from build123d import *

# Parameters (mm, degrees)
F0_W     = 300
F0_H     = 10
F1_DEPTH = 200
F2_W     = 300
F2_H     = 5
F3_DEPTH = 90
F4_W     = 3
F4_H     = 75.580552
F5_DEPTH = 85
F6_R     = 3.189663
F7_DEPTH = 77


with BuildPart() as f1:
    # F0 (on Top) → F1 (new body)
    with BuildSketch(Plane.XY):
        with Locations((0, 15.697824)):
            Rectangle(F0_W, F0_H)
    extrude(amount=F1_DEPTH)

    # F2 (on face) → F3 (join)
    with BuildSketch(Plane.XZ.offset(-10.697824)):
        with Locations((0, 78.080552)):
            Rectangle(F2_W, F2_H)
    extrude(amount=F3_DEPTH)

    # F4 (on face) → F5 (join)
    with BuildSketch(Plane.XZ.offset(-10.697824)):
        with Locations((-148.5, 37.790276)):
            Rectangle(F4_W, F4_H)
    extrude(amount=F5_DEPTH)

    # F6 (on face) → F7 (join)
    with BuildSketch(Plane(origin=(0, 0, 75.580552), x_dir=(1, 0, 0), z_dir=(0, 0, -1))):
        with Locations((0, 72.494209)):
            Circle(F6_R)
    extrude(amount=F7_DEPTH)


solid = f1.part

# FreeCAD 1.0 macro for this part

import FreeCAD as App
import Part
import Sketcher

doc = App.newDocument("Part")
body = doc.addObject("PartDesign::Body", "Body")

# Sketch on XY plane
sketch1 = body.newObject("Sketcher::SketchObject", "Sketch")
sketch1.AttachmentSupport = (doc.getObject("XY_Plane"), [""])
sketch1.MapMode = "FlatFace"
sketch1.addGeometry(Part.LineSegment(App.Vector(-150, 20.697824, 0), App.Vector(-150, 10.697824, 0)), False)
sketch1.addGeometry(Part.LineSegment(App.Vector(-150, 10.697824, 0), App.Vector(150, 10.697824, 0)), False)
sketch1.addGeometry(Part.LineSegment(App.Vector(150, 10.697824, 0), App.Vector(150, 20.697824, 0)), False)
sketch1.addGeometry(Part.LineSegment(App.Vector(150, 20.697824, 0), App.Vector(-150, 20.697824, 0)), False)
sketch1.addConstraint(Sketcher.Constraint("Coincident", 0, 2, 1, 1))
sketch1.addConstraint(Sketcher.Constraint("Coincident", 1, 2, 2, 1))
sketch1.addConstraint(Sketcher.Constraint("Coincident", 2, 2, 3, 1))
sketch1.addConstraint(Sketcher.Constraint("Coincident", 3, 2, 0, 1))
sketch1.addConstraint(Sketcher.Constraint("Vertical", 0))
sketch1.addConstraint(Sketcher.Constraint("Horizontal", 1))
sketch1.addConstraint(Sketcher.Constraint("Vertical", 2))
sketch1.addConstraint(Sketcher.Constraint("Horizontal", 3))
sketch1.addConstraint(Sketcher.Constraint("DistanceX", 1, 1, 1, 2, 300.0))
sketch1.addConstraint(Sketcher.Constraint("DistanceY", 0, 2, 0, 1, 10.0))
sketch1.addConstraint(Sketcher.Constraint("DistanceX", 0, 2, -1, 1, 150.0))
sketch1.addConstraint(Sketcher.Constraint("DistanceY", -1, 1, 0, 2, 10.697824))
pad1 = body.newObject("PartDesign::Pad", "Pad")
pad1.Profile = sketch1
pad1.Length = 200

# Sketch on XZ plane
sketch2 = body.newObject("Sketcher::SketchObject", "Sketch001")
sketch2.AttachmentSupport = (doc.getObject("XZ_Plane"), [""])
sketch2.MapMode = "FlatFace"
sketch2.AttachmentOffset = App.Placement(App.Vector(0, 0, -10.697824), App.Rotation())
sketch2.addGeometry(Part.LineSegment(App.Vector(-150, 80.580552, 0), App.Vector(-150, 75.580552, 0)), False)
sketch2.addGeometry(Part.LineSegment(App.Vector(-150, 75.580552, 0), App.Vector(150, 75.580552, 0)), False)
sketch2.addGeometry(Part.LineSegment(App.Vector(150, 75.580552, 0), App.Vector(150, 80.580552, 0)), False)
sketch2.addGeometry(Part.LineSegment(App.Vector(150, 80.580552, 0), App.Vector(-150, 80.580552, 0)), False)
sketch2.addConstraint(Sketcher.Constraint("Coincident", 0, 2, 1, 1))
sketch2.addConstraint(Sketcher.Constraint("Coincident", 1, 2, 2, 1))
sketch2.addConstraint(Sketcher.Constraint("Coincident", 2, 2, 3, 1))
sketch2.addConstraint(Sketcher.Constraint("Coincident", 3, 2, 0, 1))
sketch2.addConstraint(Sketcher.Constraint("Vertical", 0))
sketch2.addConstraint(Sketcher.Constraint("Horizontal", 1))
sketch2.addConstraint(Sketcher.Constraint("Vertical", 2))
sketch2.addConstraint(Sketcher.Constraint("Horizontal", 3))
sketch2.addConstraint(Sketcher.Constraint("DistanceX", 1, 1, 1, 2, 300.0))
sketch2.addConstraint(Sketcher.Constraint("DistanceY", 0, 2, 0, 1, 5.0))
sketch2.addConstraint(Sketcher.Constraint("DistanceX", 0, 2, -1, 1, 150.0))
sketch2.addConstraint(Sketcher.Constraint("DistanceY", -1, 1, 0, 2, 75.580552))
pad2 = body.newObject("PartDesign::Pad", "Pad001")
pad2.Profile = sketch2
pad2.Length = 90

# Sketch on XZ plane
sketch3 = body.newObject("Sketcher::SketchObject", "Sketch002")
sketch3.AttachmentSupport = (doc.getObject("XZ_Plane"), [""])
sketch3.MapMode = "FlatFace"
sketch3.AttachmentOffset = App.Placement(App.Vector(0, 0, -10.697824), App.Rotation())
sketch3.addGeometry(Part.LineSegment(App.Vector(-150, 75.580552, 0), App.Vector(-150, 0, 0)), False)
sketch3.addGeometry(Part.LineSegment(App.Vector(-150, 0, 0), App.Vector(-147, 0, 0)), False)
sketch3.addGeometry(Part.LineSegment(App.Vector(-147, 0, 0), App.Vector(-147, 75.580552, 0)), False)
sketch3.addGeometry(Part.LineSegment(App.Vector(-147, 75.580552, 0), App.Vector(-150, 75.580552, 0)), False)
sketch3.addConstraint(Sketcher.Constraint("Coincident", 0, 2, 1, 1))
sketch3.addConstraint(Sketcher.Constraint("Coincident", 1, 2, 2, 1))
sketch3.addConstraint(Sketcher.Constraint("Coincident", 2, 2, 3, 1))
sketch3.addConstraint(Sketcher.Constraint("Coincident", 3, 2, 0, 1))
sketch3.addConstraint(Sketcher.Constraint("Vertical", 0))
sketch3.addConstraint(Sketcher.Constraint("Horizontal", 1))
sketch3.addConstraint(Sketcher.Constraint("Vertical", 2))
sketch3.addConstraint(Sketcher.Constraint("Horizontal", 3))
sketch3.addConstraint(Sketcher.Constraint("PointOnObject", 0, 2, -1))
sketch3.addConstraint(Sketcher.Constraint("DistanceX", 1, 1, 1, 2, 3.0))
sketch3.addConstraint(Sketcher.Constraint("DistanceX", 0, 2, -1, 1, 150.0))
sketch3.addConstraint(Sketcher.Constraint("DistanceY", 0, 2, 0, 1, 75.580552))
pad3 = body.newObject("PartDesign::Pad", "Pad002")
pad3.Profile = sketch3
pad3.Length = 85

# Sketch on XY plane
sketch4 = body.newObject("Sketcher::SketchObject", "Sketch003")
sketch4.AttachmentSupport = (doc.getObject("XY_Plane"), [""])
sketch4.MapMode = "FlatFace"
sketch4.AttachmentOffset = App.Placement(App.Vector(0, 0, 75.580552), App.Rotation())
sketch4.addGeometry(Part.Circle(App.Vector(0, -72.494209, 0), App.Vector(0, 0, 1), 3.189663), False)
sketch4.addConstraint(Sketcher.Constraint("PointOnObject", 0, 3, -2))
sketch4.addConstraint(Sketcher.Constraint("Diameter", 0, 6.379326))
sketch4.addConstraint(Sketcher.Constraint("DistanceY", 0, 3, -1, 1, 72.494209))
pad4 = body.newObject("PartDesign::Pad", "Pad003")
pad4.Profile = sketch4
pad4.Length = 77
pad4.Reversed = True

doc.recompute()
